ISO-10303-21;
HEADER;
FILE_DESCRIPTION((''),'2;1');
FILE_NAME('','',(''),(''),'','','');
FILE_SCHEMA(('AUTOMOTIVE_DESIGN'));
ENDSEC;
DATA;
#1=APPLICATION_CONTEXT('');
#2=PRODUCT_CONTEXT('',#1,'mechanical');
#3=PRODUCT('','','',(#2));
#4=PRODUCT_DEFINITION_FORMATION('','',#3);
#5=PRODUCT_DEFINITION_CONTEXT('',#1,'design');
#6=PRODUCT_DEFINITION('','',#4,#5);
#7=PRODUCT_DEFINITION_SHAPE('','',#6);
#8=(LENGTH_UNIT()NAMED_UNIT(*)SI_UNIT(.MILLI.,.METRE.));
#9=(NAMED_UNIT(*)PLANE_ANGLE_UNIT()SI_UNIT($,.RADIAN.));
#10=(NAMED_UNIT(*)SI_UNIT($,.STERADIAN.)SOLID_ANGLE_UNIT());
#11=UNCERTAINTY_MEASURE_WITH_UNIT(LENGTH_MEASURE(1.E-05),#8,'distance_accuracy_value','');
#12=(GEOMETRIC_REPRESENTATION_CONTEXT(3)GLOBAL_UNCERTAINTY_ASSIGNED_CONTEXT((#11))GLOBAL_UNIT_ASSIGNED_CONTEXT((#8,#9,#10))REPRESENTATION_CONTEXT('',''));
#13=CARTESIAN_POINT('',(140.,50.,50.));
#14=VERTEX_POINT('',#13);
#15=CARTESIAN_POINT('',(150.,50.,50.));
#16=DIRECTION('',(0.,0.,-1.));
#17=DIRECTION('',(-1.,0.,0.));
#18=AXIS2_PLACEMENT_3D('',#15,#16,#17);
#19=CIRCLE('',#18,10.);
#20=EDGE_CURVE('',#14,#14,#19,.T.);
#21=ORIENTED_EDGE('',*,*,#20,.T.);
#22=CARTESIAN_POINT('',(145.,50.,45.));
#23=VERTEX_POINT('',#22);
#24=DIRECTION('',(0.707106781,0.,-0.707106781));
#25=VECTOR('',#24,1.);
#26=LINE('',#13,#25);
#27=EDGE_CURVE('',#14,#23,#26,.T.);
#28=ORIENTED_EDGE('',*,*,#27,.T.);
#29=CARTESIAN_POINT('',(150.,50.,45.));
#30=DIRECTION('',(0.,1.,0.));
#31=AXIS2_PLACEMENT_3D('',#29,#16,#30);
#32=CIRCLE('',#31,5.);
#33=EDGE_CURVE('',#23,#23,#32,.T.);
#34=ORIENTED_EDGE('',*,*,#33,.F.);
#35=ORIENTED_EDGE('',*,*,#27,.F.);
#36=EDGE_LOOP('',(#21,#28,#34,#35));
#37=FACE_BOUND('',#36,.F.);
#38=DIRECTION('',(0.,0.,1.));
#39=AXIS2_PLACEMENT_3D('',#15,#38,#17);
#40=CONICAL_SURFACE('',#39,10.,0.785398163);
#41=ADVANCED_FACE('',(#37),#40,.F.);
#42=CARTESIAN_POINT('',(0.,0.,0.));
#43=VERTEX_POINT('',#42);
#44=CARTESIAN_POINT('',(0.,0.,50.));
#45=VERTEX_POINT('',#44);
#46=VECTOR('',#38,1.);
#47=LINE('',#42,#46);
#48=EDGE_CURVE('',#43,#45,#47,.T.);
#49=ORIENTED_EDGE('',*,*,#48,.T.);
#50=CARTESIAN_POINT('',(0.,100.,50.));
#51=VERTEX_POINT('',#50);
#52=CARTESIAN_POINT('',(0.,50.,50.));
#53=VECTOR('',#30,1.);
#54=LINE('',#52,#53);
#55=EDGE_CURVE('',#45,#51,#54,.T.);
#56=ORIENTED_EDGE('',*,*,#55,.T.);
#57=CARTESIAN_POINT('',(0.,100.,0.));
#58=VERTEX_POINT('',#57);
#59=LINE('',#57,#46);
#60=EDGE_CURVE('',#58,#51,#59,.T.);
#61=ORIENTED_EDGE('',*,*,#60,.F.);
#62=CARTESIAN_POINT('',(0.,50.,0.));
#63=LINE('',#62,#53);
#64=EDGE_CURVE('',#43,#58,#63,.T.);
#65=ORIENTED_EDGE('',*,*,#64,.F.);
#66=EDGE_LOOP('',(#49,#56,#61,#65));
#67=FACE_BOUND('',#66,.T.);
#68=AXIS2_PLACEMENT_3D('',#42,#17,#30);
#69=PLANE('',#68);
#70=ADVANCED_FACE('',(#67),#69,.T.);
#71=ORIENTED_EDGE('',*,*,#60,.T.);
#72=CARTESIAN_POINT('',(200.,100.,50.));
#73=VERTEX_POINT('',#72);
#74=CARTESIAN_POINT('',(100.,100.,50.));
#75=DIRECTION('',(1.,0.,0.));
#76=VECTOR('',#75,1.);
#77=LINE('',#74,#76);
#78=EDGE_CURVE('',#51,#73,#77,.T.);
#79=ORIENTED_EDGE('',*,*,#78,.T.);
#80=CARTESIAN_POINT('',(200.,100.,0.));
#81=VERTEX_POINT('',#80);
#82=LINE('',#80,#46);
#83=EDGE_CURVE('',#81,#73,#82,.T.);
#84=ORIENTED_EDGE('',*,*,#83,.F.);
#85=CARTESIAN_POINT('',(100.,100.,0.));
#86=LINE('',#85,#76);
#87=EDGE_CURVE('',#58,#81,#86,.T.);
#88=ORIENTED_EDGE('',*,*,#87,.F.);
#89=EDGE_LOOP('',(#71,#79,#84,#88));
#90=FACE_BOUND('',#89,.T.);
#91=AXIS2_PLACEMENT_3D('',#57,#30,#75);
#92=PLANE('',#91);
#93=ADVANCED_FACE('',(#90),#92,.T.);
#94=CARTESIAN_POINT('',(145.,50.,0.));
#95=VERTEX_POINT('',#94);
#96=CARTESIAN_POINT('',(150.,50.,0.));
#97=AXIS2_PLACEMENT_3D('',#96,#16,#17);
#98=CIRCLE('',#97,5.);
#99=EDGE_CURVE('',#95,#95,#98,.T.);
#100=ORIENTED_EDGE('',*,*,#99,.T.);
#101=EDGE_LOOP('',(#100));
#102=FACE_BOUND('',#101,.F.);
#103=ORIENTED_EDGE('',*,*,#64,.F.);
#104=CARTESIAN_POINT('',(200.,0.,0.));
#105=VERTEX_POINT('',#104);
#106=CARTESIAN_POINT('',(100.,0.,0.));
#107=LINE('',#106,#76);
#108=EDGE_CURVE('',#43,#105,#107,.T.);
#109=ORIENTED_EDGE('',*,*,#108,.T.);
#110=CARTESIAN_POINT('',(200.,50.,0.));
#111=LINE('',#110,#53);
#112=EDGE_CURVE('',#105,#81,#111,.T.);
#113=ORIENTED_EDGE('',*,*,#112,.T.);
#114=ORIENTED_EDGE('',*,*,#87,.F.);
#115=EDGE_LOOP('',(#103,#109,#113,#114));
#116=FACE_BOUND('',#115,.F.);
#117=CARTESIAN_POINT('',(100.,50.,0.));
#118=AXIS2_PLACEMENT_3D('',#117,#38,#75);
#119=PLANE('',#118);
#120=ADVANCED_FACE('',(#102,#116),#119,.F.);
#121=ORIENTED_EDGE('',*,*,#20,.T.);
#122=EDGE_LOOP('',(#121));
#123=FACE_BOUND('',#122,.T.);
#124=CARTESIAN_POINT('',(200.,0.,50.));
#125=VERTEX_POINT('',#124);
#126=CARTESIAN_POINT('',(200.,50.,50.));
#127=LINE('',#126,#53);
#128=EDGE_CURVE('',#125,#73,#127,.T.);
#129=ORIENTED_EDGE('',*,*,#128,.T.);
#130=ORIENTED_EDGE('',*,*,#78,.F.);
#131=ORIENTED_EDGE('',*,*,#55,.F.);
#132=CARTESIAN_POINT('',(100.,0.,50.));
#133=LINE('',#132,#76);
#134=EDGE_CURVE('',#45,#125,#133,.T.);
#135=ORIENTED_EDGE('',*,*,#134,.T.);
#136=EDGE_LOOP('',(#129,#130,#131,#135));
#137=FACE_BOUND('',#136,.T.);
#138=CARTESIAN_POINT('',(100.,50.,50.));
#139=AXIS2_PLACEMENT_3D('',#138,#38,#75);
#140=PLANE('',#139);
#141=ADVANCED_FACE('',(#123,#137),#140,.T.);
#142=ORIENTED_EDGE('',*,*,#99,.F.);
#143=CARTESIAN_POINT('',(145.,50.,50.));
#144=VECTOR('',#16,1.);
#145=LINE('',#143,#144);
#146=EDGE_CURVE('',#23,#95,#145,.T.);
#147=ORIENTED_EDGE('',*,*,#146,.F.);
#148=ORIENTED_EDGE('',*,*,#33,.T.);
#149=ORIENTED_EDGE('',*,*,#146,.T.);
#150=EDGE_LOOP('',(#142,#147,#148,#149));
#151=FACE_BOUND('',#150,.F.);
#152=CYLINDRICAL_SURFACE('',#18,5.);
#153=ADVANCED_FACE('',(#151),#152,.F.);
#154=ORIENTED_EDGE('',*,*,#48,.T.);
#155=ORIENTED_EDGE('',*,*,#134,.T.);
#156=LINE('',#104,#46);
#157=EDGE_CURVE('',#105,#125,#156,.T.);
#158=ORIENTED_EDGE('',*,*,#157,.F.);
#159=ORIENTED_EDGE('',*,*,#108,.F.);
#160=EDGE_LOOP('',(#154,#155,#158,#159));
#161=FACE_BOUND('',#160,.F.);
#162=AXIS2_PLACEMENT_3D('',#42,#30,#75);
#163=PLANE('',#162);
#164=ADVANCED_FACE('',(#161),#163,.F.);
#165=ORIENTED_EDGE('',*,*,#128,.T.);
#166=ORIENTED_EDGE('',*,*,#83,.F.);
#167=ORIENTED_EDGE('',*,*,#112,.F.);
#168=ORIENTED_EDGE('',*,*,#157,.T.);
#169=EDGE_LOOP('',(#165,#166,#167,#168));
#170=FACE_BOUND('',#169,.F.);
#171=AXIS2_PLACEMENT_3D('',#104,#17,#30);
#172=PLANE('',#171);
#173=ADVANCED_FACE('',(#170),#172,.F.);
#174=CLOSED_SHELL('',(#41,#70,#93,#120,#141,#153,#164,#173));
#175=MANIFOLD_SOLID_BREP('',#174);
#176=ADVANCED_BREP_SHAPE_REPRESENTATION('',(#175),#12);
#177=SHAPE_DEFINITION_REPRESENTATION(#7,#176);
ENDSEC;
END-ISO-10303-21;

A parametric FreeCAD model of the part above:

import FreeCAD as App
import Part
import Sketcher
from FreeCAD import Vector
Q = App.Units.Quantity


def add_polygon(sketch, points):
    """Adds a closed chain of lines whose ends are joined by coincident constraints."""
    first, n = sketch.GeometryCount, len(points)
    for a, b in zip(points, points[1:] + points[:1]):
        sketch.addGeometry(Part.LineSegment(App.Vector(*a, 0), App.Vector(*b, 0)), False)
    for i in range(n):
        sketch.addConstraint(Sketcher.Constraint("Coincident", first + i, 2, first + (i + 1) % n, 1))

doc = App.newDocument("Part")
body = doc.addObject("PartDesign::Body", "Body")

# Sketch on XY plane
sketch1 = doc.addObject("Sketcher::SketchObject", "Sketch")
body.addObject(sketch1)
sketch1.AttachmentSupport = (doc.XY_Plane, [""])
sketch1.MapMode = "FlatFace"
add_polygon(sketch1, [(0, 100), (0, 0), (200, 0), (200, 100)])  # lines 0-3
sketch1.addConstraint(Sketcher.Constraint("Vertical", 0))
sketch1.addConstraint(Sketcher.Constraint("Horizontal", 1))
sketch1.addConstraint(Sketcher.Constraint("Vertical", 2))
sketch1.addConstraint(Sketcher.Constraint("Horizontal", 3))
sketch1.addConstraint(Sketcher.Constraint("Coincident", 0, 2, -1, 1))
sketch1.addConstraint(Sketcher.Constraint("DistanceX", 1, 1, 1, 2, Q("200 mm")))
sketch1.addConstraint(Sketcher.Constraint("DistanceY", 0, 2, 0, 1, Q("100 mm")))
pad1 = doc.addObject("PartDesign::Pad", "Pad")
body.addObject(pad1)
pad1.Profile = sketch1
pad1.Length = 50

# Sketch on XY plane
sketch2 = doc.addObject("Sketcher::SketchObject", "Sketch001")
body.addObject(sketch2)
sketch2.AttachmentSupport = (doc.XY_Plane, [""])
sketch2.MapMode = "FlatFace"
sketch2.AttachmentOffset = App.Placement(Vector(0, 0, 50), App.Rotation())
sketch2.addGeometry(Part.Circle(Vector(150, 50, 0), Vector(0, 0, 1), 5), False)
sketch2.addConstraint(Sketcher.Constraint("Diameter", 0, Q("10 mm")))
sketch2.addConstraint(Sketcher.Constraint("DistanceX", -1, 1, 0, 3, Q("150 mm")))
sketch2.addConstraint(Sketcher.Constraint("DistanceY", -1, 1, 0, 3, Q("50 mm")))
doc.recompute()
hole = doc.addObject("PartDesign::Hole", "Hole")
body.addObject(hole)
hole.Profile = sketch2
hole.ThreadType = "None"
hole.Diameter = 10
hole.DepthType = "ThroughAll"
hole.HoleCutType = "Countersink"
hole.HoleCutDiameter = 20
hole.HoleCutCountersinkAngle = 90

doc.recompute()
